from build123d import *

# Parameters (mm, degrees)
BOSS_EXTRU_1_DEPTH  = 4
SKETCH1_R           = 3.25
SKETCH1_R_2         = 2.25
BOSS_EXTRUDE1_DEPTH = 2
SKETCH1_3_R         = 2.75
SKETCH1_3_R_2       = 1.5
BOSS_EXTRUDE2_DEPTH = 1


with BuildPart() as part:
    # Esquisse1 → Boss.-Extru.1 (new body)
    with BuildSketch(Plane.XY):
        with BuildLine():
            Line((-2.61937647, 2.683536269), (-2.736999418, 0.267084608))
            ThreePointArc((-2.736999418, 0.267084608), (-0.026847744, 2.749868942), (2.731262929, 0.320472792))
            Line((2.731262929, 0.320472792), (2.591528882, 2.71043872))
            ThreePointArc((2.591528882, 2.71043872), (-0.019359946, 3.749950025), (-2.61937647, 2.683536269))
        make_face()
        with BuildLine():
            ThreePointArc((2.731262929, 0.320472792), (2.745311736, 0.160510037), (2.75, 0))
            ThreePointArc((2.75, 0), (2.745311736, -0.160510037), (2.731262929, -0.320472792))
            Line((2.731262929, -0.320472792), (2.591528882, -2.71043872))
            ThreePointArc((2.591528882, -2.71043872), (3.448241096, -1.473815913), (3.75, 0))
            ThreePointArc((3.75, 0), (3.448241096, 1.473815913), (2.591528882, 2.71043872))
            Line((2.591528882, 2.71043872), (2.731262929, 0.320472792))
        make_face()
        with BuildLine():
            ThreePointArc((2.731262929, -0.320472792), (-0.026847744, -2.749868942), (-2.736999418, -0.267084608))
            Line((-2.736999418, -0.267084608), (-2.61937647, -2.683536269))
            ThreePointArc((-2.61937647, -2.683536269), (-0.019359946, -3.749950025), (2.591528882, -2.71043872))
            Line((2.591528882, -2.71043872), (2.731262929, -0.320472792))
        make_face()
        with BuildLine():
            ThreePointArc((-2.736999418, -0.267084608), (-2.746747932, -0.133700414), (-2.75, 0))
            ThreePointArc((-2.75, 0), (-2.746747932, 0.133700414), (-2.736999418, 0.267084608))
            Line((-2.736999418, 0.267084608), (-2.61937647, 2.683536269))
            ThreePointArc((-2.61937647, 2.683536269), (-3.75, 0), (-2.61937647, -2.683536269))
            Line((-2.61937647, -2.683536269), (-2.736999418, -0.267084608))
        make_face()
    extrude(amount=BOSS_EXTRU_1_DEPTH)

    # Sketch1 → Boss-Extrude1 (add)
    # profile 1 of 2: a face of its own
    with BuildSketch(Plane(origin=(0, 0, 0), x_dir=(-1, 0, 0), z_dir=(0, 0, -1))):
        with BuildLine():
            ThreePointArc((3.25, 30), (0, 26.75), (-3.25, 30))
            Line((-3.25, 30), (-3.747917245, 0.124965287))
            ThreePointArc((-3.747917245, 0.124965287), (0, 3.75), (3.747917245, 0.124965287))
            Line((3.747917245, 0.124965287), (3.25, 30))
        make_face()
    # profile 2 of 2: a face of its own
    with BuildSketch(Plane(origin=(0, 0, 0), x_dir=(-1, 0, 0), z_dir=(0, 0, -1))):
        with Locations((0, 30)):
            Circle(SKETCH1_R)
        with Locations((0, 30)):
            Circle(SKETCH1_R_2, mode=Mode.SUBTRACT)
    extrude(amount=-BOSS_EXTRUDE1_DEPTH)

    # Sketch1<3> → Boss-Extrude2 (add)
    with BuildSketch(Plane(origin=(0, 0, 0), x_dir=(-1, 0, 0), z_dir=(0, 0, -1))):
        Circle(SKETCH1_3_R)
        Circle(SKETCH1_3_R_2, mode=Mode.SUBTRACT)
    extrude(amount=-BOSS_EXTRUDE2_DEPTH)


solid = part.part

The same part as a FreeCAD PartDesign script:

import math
import FreeCAD as App
import Part
import Sketcher

doc = App.newDocument("Part")
body = doc.addObject("PartDesign::Body", "Body")

# Sketch on XY plane
sketch1 = body.newObject("Sketcher::SketchObject", "Sketch")
sketch1.AttachmentSupport = (doc.getObject("XY_Plane"), [""])
sketch1.MapMode = "FlatFace"
sketch1.addGeometry([
    Part.ArcOfCircle(Part.Circle(App.Vector(0, 0, 0), App.Vector(0, 0, 1), 3.75), math.radians(-134.306814), math.radians(-46.284785)),  # 0
    Part.ArcOfCircle(Part.Circle(App.Vector(0, 0, 0), App.Vector(0, 0, 1), 3.75), math.radians(-46.284785), math.radians(0)),  # 1
    Part.ArcOfCircle(Part.Circle(App.Vector(0, 0, 0), App.Vector(0, 0, 1), 3.75), math.radians(0), math.radians(46.284785)),  # 2
    Part.ArcOfCircle(Part.Circle(App.Vector(0, 0, 0), App.Vector(0, 0, 1), 3.75), math.radians(46.284785), math.radians(134.306814)),  # 3
    Part.ArcOfCircle(Part.Circle(App.Vector(0, 0, 0), App.Vector(0, 0, 1), 3.75), math.radians(134.306814), math.radians(225.693186)),  # 4
    Part.ArcOfCircle(Part.Circle(App.Vector(0, 0, 0), App.Vector(0, 0, 1), 2.75), math.radians(6.692202), math.radians(174.426552)),  # 5
    Part.ArcOfCircle(Part.Circle(App.Vector(0, 0, 0), App.Vector(0, 0, 1), 2.75), math.radians(0), math.radians(6.692202)),  # 6
    Part.ArcOfCircle(Part.Circle(App.Vector(0, 0, 0), App.Vector(0, 0, 1), 2.75), math.radians(-6.692202), math.radians(0)),  # 7
    Part.ArcOfCircle(Part.Circle(App.Vector(0, 0, 0), App.Vector(0, 0, 1), 2.75), math.radians(-174.426552), math.radians(-6.692202)),  # 8
    Part.ArcOfCircle(Part.Circle(App.Vector(0, 0, 0), App.Vector(0, 0, 1), 2.75), math.radians(180), math.radians(185.573448)),  # 9
    Part.ArcOfCircle(Part.Circle(App.Vector(0, 0, 0), App.Vector(0, 0, 1), 2.75), math.radians(174.426552), math.radians(180)),  # 10
], False)
sketch1.addConstraint([
    Sketcher.Constraint("Tangent", 0, 2, 1, 1),
    Sketcher.Constraint("Tangent", 1, 2, 2, 1),
    Sketcher.Constraint("Tangent", 2, 2, 3, 1),
    Sketcher.Constraint("Tangent", 3, 2, 4, 1),
    Sketcher.Constraint("Tangent", 4, 2, 0, 1),
    Sketcher.Constraint("Tangent", 5, 1, 6, 2),
    Sketcher.Constraint("Tangent", 6, 1, 7, 2),
    Sketcher.Constraint("Tangent", 7, 1, 8, 2),
    Sketcher.Constraint("Tangent", 8, 1, 9, 2),
    Sketcher.Constraint("Tangent", 9, 1, 10, 2),
    Sketcher.Constraint("Tangent", 10, 1, 5, 2),
    Sketcher.Constraint("Coincident", 0, 3, -1, 1),
    Sketcher.Constraint("Coincident", 2, 3, -1, 1),
    Sketcher.Constraint("Coincident", 5, 3, -1, 1),
    Sketcher.Constraint("Coincident", 7, 3, -1, 1),
    Sketcher.Constraint("Equal", 8, 9),
    Sketcher.Constraint("PointOnObject", 1, 2, -1),
    Sketcher.Constraint("PointOnObject", 6, 1, -1),
    Sketcher.Constraint("PointOnObject", 9, 1, -1),
    Sketcher.Constraint("Vertical", 0, 2, 2, 2),
    Sketcher.Constraint("Vertical", 3, 2, 4, 2),
    Sketcher.Constraint("Vertical", 5, 1, 7, 1),
    Sketcher.Constraint("Vertical", 8, 1, 10, 1),
    Sketcher.Constraint("Radius", 0, 3.75),
    Sketcher.Constraint("Radius", 5, 2.75),
    Sketcher.Constraint("DistanceX", 8, 1, -1, 1, 2.736999),
    Sketcher.Constraint("DistanceX", -1, 1, 0, 2, 2.591529),
    Sketcher.Constraint("DistanceY", 4, 2, 8, 1, 2.416452),
    Sketcher.Constraint("DistanceX", -1, 1, 5, 1, 2.731263),
])
pad1 = body.newObject("PartDesign::Pad", "Pad")
pad1.Profile = sketch1
pad1.Length = 4

# Sketch on XY plane
sketch2 = body.newObject("Sketcher::SketchObject", "Sketch001")
sketch2.AttachmentSupport = (doc.getObject("XY_Plane"), [""])
sketch2.MapMode = "FlatFace"
sketch2.addGeometry([
    Part.LineSegment(App.Vector(3.25, 30, 0), App.Vector(3.747917, 0.124965, 0)),  # 0
    Part.ArcOfCircle(Part.Circle(App.Vector(0, 0, 0), App.Vector(0, 0, 1), 3.75), math.radians(1.909683), math.radians(178.090317)),  # 1
    Part.LineSegment(App.Vector(-3.747917, 0.124965, 0), App.Vector(-3.25, 30, 0)),  # 2
    Part.ArcOfCircle(Part.Circle(App.Vector(0, 30, 0), App.Vector(0, 0, 1), 3.25), math.radians(0), math.radians(180)),  # 3
    Part.Circle(App.Vector(0, 30, 0), App.Vector(0, 0, 1), 2.25),  # 4
], False)
sketch2.addConstraint([
    Sketcher.Constraint("Coincident", 0, 2, 1, 1),
    Sketcher.Constraint("Coincident", 1, 2, 2, 1),
    Sketcher.Constraint("Coincident", 2, 2, 3, 2),
    Sketcher.Constraint("Coincident", 3, 1, 0, 1),
    Sketcher.Constraint("Coincident", 1, 3, -1, 1),
    Sketcher.Constraint("Coincident", 4, 3, 3, 3),
    Sketcher.Constraint("Symmetric", 2, 2, 3, 1, -2),
    Sketcher.Constraint("Horizontal", 0, 2, 1, 2),
    Sketcher.Constraint("Horizontal", 4, 3, 2, 2),
    Sketcher.Constraint("Diameter", 4, 4.5),
    Sketcher.Constraint("Radius", 1, 3.75),
    Sketcher.Constraint("Radius", 3, 3.25),
    Sketcher.Constraint("DistanceY", -1, 1, 3, 3, 30.0),
    Sketcher.Constraint("Distance", 0, 29.879184),
])
pad2 = body.newObject("PartDesign::Pad", "Pad001")
pad2.Profile = sketch2
pad2.Length = 2

# Sketch on XY plane
sketch3 = body.newObject("Sketcher::SketchObject", "Sketch002")
sketch3.AttachmentSupport = (doc.getObject("XY_Plane"), [""])
sketch3.MapMode = "FlatFace"
sketch3.addGeometry([
    Part.Circle(App.Vector(0, 0, 0), App.Vector(0, 0, 1), 2.75),
    Part.Circle(App.Vector(0, 0, 0), App.Vector(0, 0, 1), 1.5),
], False)
sketch3.addConstraint([
    Sketcher.Constraint("Coincident", 0, 3, -1, 1),
    Sketcher.Constraint("Coincident", 1, 3, -1, 1),
    Sketcher.Constraint("Diameter", 1, 3.0),
    Sketcher.Constraint("Diameter", 0, 5.5),
])
pad3 = body.newObject("PartDesign::Pad", "Pad002")
pad3.Profile = sketch3
pad3.Length = 1

doc.recompute()
